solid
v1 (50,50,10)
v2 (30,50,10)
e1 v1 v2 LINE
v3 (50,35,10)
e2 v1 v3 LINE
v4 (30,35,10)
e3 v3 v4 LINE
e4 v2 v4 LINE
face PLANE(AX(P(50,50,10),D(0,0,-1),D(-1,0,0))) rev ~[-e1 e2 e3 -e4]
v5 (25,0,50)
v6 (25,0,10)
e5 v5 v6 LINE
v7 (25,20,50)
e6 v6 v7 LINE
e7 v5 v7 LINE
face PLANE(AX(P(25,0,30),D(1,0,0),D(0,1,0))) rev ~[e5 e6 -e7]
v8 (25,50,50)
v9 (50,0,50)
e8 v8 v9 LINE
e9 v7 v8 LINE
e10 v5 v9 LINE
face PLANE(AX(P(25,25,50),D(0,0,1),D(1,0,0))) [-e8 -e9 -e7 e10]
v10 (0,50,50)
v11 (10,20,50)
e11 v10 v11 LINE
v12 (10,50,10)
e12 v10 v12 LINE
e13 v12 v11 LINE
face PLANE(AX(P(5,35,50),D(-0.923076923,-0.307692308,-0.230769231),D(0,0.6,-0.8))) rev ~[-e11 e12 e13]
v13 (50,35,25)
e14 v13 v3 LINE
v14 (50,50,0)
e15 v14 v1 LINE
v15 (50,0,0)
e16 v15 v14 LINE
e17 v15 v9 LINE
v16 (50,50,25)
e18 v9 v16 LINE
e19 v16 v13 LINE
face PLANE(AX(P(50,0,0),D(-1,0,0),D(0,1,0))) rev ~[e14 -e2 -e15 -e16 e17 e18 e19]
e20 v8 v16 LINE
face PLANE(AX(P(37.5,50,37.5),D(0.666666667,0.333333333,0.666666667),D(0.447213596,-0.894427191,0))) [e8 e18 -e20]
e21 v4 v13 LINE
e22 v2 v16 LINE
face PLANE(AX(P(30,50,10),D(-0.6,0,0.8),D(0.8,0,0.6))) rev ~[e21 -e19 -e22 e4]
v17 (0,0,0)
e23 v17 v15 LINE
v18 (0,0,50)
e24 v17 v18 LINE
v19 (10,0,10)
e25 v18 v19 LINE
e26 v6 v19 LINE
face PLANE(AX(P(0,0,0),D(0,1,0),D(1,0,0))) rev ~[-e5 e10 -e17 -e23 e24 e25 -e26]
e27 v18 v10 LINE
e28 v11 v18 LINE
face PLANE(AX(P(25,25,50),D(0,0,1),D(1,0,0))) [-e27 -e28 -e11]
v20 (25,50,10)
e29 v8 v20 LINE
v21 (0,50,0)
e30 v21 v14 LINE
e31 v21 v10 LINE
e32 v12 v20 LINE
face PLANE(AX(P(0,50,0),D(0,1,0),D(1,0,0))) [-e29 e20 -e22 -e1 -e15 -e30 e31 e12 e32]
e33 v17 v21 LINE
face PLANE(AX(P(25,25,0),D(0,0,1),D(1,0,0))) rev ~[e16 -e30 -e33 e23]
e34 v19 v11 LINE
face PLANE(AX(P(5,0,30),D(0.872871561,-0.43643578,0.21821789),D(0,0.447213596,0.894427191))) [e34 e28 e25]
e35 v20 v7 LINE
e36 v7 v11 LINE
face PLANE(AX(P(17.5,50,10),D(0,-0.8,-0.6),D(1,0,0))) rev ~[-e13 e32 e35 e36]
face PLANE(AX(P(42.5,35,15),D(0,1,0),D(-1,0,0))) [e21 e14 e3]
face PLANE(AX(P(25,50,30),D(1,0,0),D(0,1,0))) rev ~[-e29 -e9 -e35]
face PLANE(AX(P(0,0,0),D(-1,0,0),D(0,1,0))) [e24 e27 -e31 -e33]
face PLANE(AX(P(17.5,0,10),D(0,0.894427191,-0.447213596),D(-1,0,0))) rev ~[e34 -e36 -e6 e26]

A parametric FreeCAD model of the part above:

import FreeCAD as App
import Part
import Sketcher
from FreeCAD import Vector
Q = App.Units.Quantity

doc = App.newDocument("Part")
body = doc.addObject("PartDesign::Body", "Body")

# Sketch on XY plane
sketch1 = doc.addObject("Sketcher::SketchObject", "Sketch")
body.addObject(sketch1)
sketch1.AttachmentSupport = (doc.XY_Plane, [""])
sketch1.MapMode = "FlatFace"
sketch1.addGeometry([
    Part.LineSegment(Vector(0, 50, 0), Vector(0, 0, 0)),
    Part.LineSegment(Vector(0, 0, 0), Vector(50, 0, 0)),
    Part.LineSegment(Vector(50, 0, 0), Vector(50, 50, 0)),
    Part.LineSegment(Vector(50, 50, 0), Vector(0, 50, 0)),
], False)
sketch1.addConstraint([
    Sketcher.Constraint("Coincident", 0, 2, 1, 1),
    Sketcher.Constraint("Coincident", 1, 2, 2, 1),
    Sketcher.Constraint("Coincident", 2, 2, 3, 1),
    Sketcher.Constraint("Coincident", 3, 2, 0, 1),
    Sketcher.Constraint("Vertical", 0),
    Sketcher.Constraint("Horizontal", 1),
    Sketcher.Constraint("Vertical", 2),
    Sketcher.Constraint("Horizontal", 3),
    Sketcher.Constraint("Coincident", 0, 2, -1, 1),
    Sketcher.Constraint("Equal", 3, 0),
    Sketcher.Constraint("DistanceX", 1, 1, 1, 2, Q("50 mm")),
])
pad1 = doc.addObject("PartDesign::Pad", "Pad")
body.addObject(pad1)
pad1.Profile = sketch1
pad1.Length = 50

# Sketch on XY plane
sketch2 = doc.addObject("Sketcher::SketchObject", "Sketch001")
body.addObject(sketch2)
sketch2.AttachmentSupport = (doc.XY_Plane, [""])
sketch2.MapMode = "FlatFace"
sketch2.AttachmentOffset = App.Placement(Vector(0, 0, 50), App.Rotation())
sketch2.addGeometry([
    Part.LineSegment(Vector(10, 20, 0), Vector(10, 0, 0)),
    Part.LineSegment(Vector(10, 0, 0), Vector(25, 0, 0)),
    Part.LineSegment(Vector(25, 0, 0), Vector(25, 20, 0)),
    Part.LineSegment(Vector(25, 20, 0), Vector(10, 20, 0)),
], False)
sketch2.addConstraint([
    Sketcher.Constraint("Coincident", 0, 2, 1, 1),
    Sketcher.Constraint("Coincident", 1, 2, 2, 1),
    Sketcher.Constraint("Coincident", 2, 2, 3, 1),
    Sketcher.Constraint("Coincident", 3, 2, 0, 1),
    Sketcher.Constraint("Vertical", 0),
    Sketcher.Constraint("Horizontal", 1),
    Sketcher.Constraint("Vertical", 2),
    Sketcher.Constraint("Horizontal", 3),
    Sketcher.Constraint("PointOnObject", 0, 2, -1),
    Sketcher.Constraint("DistanceX", 1, 1, 1, 2, Q("15 mm")),
    Sketcher.Constraint("DistanceY", 0, 2, 0, 1, Q("20 mm")),
    Sketcher.Constraint("DistanceX", -1, 1, 0, 2, Q("10 mm")),
])

# Sketch on an angled plane
sketch3 = doc.addObject("Sketcher::SketchObject", "Sketch002")
body.addObject(sketch3)
sketch3.Placement = App.Placement(Vector(0, -4, 2), App.Rotation(Vector(0, -0.447213595, -0.894427191), Vector(1, 0, 0), Vector(0, -0.894427191, 0.447213595), "ZXY"))
sketch3.addGeometry(Part.LineSegment(Vector(-8.944272, 50, 0), Vector(-53.665631, 50, 0)), False)
sketch3.addConstraint([
    Sketcher.Constraint("Horizontal", 0),
    Sketcher.Constraint("DistanceY", -1, 1, 0, 1, Q("50 mm")),
    Sketcher.Constraint("DistanceX", 0, 2, 0, 1, Q("44.72136 mm")),
    Sketcher.Constraint("DistanceX", 0, 1, -1, 1, Q("8.944272 mm")),
])
doc.recompute()

subtractivepipe = doc.addObject("PartDesign::SubtractivePipe", "SubtractivePipe")
body.addObject(subtractivepipe)
subtractivepipe.Profile = sketch2
subtractivepipe.Spine = (sketch3, ["Edge1"])

# Sketch on XY plane
sketch4 = doc.addObject("Sketcher::SketchObject", "Sketch003")
body.addObject(sketch4)
sketch4.AttachmentSupport = (doc.XY_Plane, [""])
sketch4.MapMode = "FlatFace"
sketch4.AttachmentOffset = App.Placement(Vector(0, 0, 50), App.Rotation())
sketch4.addGeometry([
    Part.LineSegment(Vector(10, 50, 0), Vector(10, 20, 0)),
    Part.LineSegment(Vector(10, 20, 0), Vector(25, 20, 0)),
    Part.LineSegment(Vector(25, 20, 0), Vector(25, 50, 0)),
    Part.LineSegment(Vector(25, 50, 0), Vector(10, 50, 0)),
], False)
sketch4.addConstraint([
    Sketcher.Constraint("Coincident", 0, 2, 1, 1),
    Sketcher.Constraint("Coincident", 1, 2, 2, 1),
    Sketcher.Constraint("Coincident", 2, 2, 3, 1),
    Sketcher.Constraint("Coincident", 3, 2, 0, 1),
    Sketcher.Constraint("Vertical", 0),
    Sketcher.Constraint("Horizontal", 1),
    Sketcher.Constraint("Vertical", 2),
    Sketcher.Constraint("Horizontal", 3),
    Sketcher.Constraint("DistanceX", 1, 1, 1, 2, Q("15 mm")),
    Sketcher.Constraint("DistanceY", 0, 2, 0, 1, Q("30 mm")),
    Sketcher.Constraint("DistanceX", -1, 1, 0, 2, Q("10 mm")),
    Sketcher.Constraint("DistanceY", -1, 1, 0, 2, Q("20 mm")),
])

# Sketch on an angled plane
sketch5 = doc.addObject("Sketcher::SketchObject", "Sketch004")
body.addObject(sketch5)
sketch5.Placement = App.Placement(Vector(0, 36.8, 27.6), App.Rotation(Vector(0, -0.6, 0.8), Vector(1, 0, 0), Vector(0, 0.8, 0.6), "ZXY"))
sketch5.addGeometry(Part.LineSegment(Vector(-22, 50, 0), Vector(28, 50, 0)), False)
sketch5.addConstraint([
    Sketcher.Constraint("Horizontal", 0),
    Sketcher.Constraint("DistanceX", 0, 1, 0, 2, Q("50 mm")),
    Sketcher.Constraint("DistanceX", 0, 1, -1, 1, Q("22 mm")),
    Sketcher.Constraint("DistanceY", -1, 1, 0, 1, Q("50 mm")),
])
doc.recompute()

subtractivepipe2 = doc.addObject("PartDesign::SubtractivePipe", "SubtractivePipe001")
body.addObject(subtractivepipe2)
subtractivepipe2.Profile = sketch4
subtractivepipe2.Spine = (sketch5, ["Edge1"])

# Sketch on YZ plane
sketch6 = doc.addObject("Sketcher::SketchObject", "Sketch005")
body.addObject(sketch6)
sketch6.AttachmentSupport = (doc.YZ_Plane, [""])
sketch6.MapMode = "FlatFace"
sketch6.AttachmentOffset = App.Placement(Vector(0, 0, 10), App.Rotation())
sketch6.addGeometry([
    Part.LineSegment(Vector(50, 50, 0), Vector(20, 50, 0)),
    Part.LineSegment(Vector(20, 50, 0), Vector(50, 10, 0)),
    Part.LineSegment(Vector(50, 10, 0), Vector(50, 50, 0)),
], False)
sketch6.addConstraint([
    Sketcher.Constraint("Coincident", 0, 2, 1, 1),
    Sketcher.Constraint("Coincident", 1, 2, 2, 1),
    Sketcher.Constraint("Coincident", 2, 2, 0, 1),
    Sketcher.Constraint("Horizontal", 0),
    Sketcher.Constraint("Vertical", 2),
    Sketcher.Constraint("DistanceX", 0, 2, 0, 1, Q("30 mm")),
    Sketcher.Constraint("DistanceY", 2, 1, 2, 2, Q("40 mm")),
    Sketcher.Constraint("DistanceX", -1, 1, 0, 2, Q("20 mm")),
    Sketcher.Constraint("DistanceY", -1, 1, 0, 2, Q("50 mm")),
])

# Sketch on an angled plane
sketch7 = doc.addObject("Sketcher::SketchObject", "Sketch006")
body.addObject(sketch7)
sketch7.Placement = App.Placement(Vector(11.764706, 0, 2.941176), App.Rotation(Vector(0.242535625, 0, -0.9701425), Vector(0, 1, 0), Vector(0.9701425, 0, 0.242535625), "ZXY"))
sketch7.addGeometry(Part.LineSegment(Vector(-48.507125, 50, 0), Vector(-7.276069, 50, 0)), False)
sketch7.addConstraint([
    Sketcher.Constraint("Horizontal", 0),
    Sketcher.Constraint("DistanceY", -1, 1, 0, 1, Q("50 mm")),
    Sketcher.Constraint("DistanceX", 0, 1, 0, 2, Q("41.231056 mm")),
    Sketcher.Constraint("DistanceX", 0, 2, -1, 1, Q("7.276069 mm")),
])
doc.recompute()

subtractivepipe3 = doc.addObject("PartDesign::SubtractivePipe", "SubtractivePipe002")
body.addObject(subtractivepipe3)
subtractivepipe3.Profile = sketch6
subtractivepipe3.Spine = (sketch7, ["Edge1"])

# Sketch on YZ plane
sketch8 = doc.addObject("Sketcher::SketchObject", "Sketch007")
body.addObject(sketch8)
sketch8.AttachmentSupport = (doc.YZ_Plane, [""])
sketch8.MapMode = "FlatFace"
sketch8.AttachmentOffset = App.Placement(Vector(0, 0, 10), App.Rotation())
sketch8.addGeometry([
    Part.LineSegment(Vector(0, 10, 0), Vector(20, 50, 0)),
    Part.LineSegment(Vector(20, 50, 0), Vector(0, 50, 0)),
    Part.LineSegment(Vector(0, 50, 0), Vector(0, 10, 0)),
], False)
sketch8.addConstraint([
    Sketcher.Constraint("Coincident", 0, 2, 1, 1),
    Sketcher.Constraint("Coincident", 1, 2, 2, 1),
    Sketcher.Constraint("Coincident", 2, 2, 0, 1),
    Sketcher.Constraint("Horizontal", 1),
    Sketcher.Constraint("Vertical", 2),
    Sketcher.Constraint("PointOnObject", 1, 2, -2),
    Sketcher.Constraint("DistanceX", 1, 2, 1, 1, Q("20 mm")),
    Sketcher.Constraint("DistanceY", 2, 2, 2, 1, Q("40 mm")),
    Sketcher.Constraint("DistanceY", -1, 1, 0, 2, Q("50 mm")),
])

# Sketch on an angled plane
sketch9 = doc.addObject("Sketcher::SketchObject", "Sketch008")
body.addObject(sketch9)
sketch9.Placement = App.Placement(Vector(0, 0, 0), App.Rotation(Vector(-0.447213595, -0.894427191, 0), Vector(0, 0, 1), Vector(-0.894427191, 0.447213595, 0), "ZXY"))
sketch9.addGeometry(Part.LineSegment(Vector(-22.36068, 50, 0), Vector(0, 50, 0)), False)
sketch9.addConstraint([
    Sketcher.Constraint("Horizontal", 0),
    Sketcher.Constraint("PointOnObject", 0, 2, -2),
    Sketcher.Constraint("DistanceY", -1, 1, 0, 1, Q("50 mm")),
    Sketcher.Constraint("DistanceX", 0, 1, 0, 2, Q("22.36068 mm")),
])
doc.recompute()

subtractivepipe4 = doc.addObject("PartDesign::SubtractivePipe", "SubtractivePipe003")
body.addObject(subtractivepipe4)
subtractivepipe4.Profile = sketch8
subtractivepipe4.Spine = (sketch9, ["Edge1"])

# Sketch on XY plane
sketch10 = doc.addObject("Sketcher::SketchObject", "Sketch009")
body.addObject(sketch10)
sketch10.AttachmentSupport = (doc.XY_Plane, [""])
sketch10.MapMode = "FlatFace"
sketch10.AttachmentOffset = App.Placement(Vector(0, 0, 50), App.Rotation())
sketch10.addGeometry([
    Part.LineSegment(Vector(50, 50, 0), Vector(25, 50, 0)),
    Part.LineSegment(Vector(25, 50, 0), Vector(50, 0, 0)),
    Part.LineSegment(Vector(50, 0, 0), Vector(50, 50, 0)),
], False)
sketch10.addConstraint([
    Sketcher.Constraint("Coincident", 0, 2, 1, 1),
    Sketcher.Constraint("Coincident", 1, 2, 2, 1),
    Sketcher.Constraint("Coincident", 2, 2, 0, 1),
    Sketcher.Constraint("Horizontal", 0),
    Sketcher.Constraint("Vertical", 2),
    Sketcher.Constraint("PointOnObject", 1, 2, -1),
    Sketcher.Constraint("DistanceX", 0, 2, 0, 1, Q("25 mm")),
    Sketcher.Constraint("DistanceY", 2, 1, 2, 2, Q("50 mm")),
    Sketcher.Constraint("DistanceX", -1, 1, 0, 2, Q("25 mm")),
])

# Sketch on an angled plane
sketch11 = doc.addObject("Sketcher::SketchObject", "Sketch010")
body.addObject(sketch11)
sketch11.Placement = App.Placement(Vector(0, 20, 40), App.Rotation(Vector(0, -0.894427191, 0.447213595), Vector(1, 0, 0), Vector(0, 0.447213595, 0.894427191), "ZXY"))
sketch11.addGeometry(Part.LineSegment(Vector(22.36068, 50, 0), Vector(-33.54102, 50, 0)), False)
sketch11.addConstraint([
    Sketcher.Constraint("Horizontal", 0),
    Sketcher.Constraint("DistanceY", -1, 1, 0, 1, Q("50 mm")),
    Sketcher.Constraint("DistanceX", 0, 2, 0, 1, Q("55.901699 mm")),
    Sketcher.Constraint("DistanceX", -1, 1, 0, 1, Q("22.36068 mm")),
])
doc.recompute()

subtractivepipe5 = doc.addObject("PartDesign::SubtractivePipe", "SubtractivePipe004")
body.addObject(subtractivepipe5)
subtractivepipe5.Profile = sketch10
subtractivepipe5.Spine = (sketch11, ["Edge1"])

# Sketch on XZ plane
sketch12 = doc.addObject("Sketcher::SketchObject", "Sketch011")
body.addObject(sketch12)
sketch12.AttachmentSupport = (doc.XZ_Plane, [""])
sketch12.MapMode = "FlatFace"
sketch12.AttachmentOffset = App.Placement(Vector(0, 0, -50), App.Rotation())
sketch12.addGeometry([
    Part.LineSegment(Vector(50, 25, 0), Vector(50, 10, 0)),
    Part.LineSegment(Vector(50, 10, 0), Vector(30, 10, 0)),
    Part.LineSegment(Vector(30, 10, 0), Vector(50, 25, 0)),
], False)
sketch12.addConstraint([
    Sketcher.Constraint("Coincident", 0, 2, 1, 1),
    Sketcher.Constraint("Coincident", 1, 2, 2, 1),
    Sketcher.Constraint("Coincident", 2, 2, 0, 1),
    Sketcher.Constraint("Vertical", 0),
    Sketcher.Constraint("Horizontal", 1),
    Sketcher.Constraint("DistanceX", 1, 2, 1, 1, Q("20 mm")),
    Sketcher.Constraint("DistanceY", 0, 2, 0, 1, Q("15 mm")),
    Sketcher.Constraint("DistanceX", -1, 1, 0, 2, Q("50 mm")),
    Sketcher.Constraint("DistanceY", -1, 1, 0, 2, Q("10 mm")),
])
pocket1 = doc.addObject("PartDesign::Pocket", "Pocket")
body.addObject(pocket1)
pocket1.Profile = sketch12
pocket1.Length = 15
pocket1.Reversed = True

doc.recompute()
